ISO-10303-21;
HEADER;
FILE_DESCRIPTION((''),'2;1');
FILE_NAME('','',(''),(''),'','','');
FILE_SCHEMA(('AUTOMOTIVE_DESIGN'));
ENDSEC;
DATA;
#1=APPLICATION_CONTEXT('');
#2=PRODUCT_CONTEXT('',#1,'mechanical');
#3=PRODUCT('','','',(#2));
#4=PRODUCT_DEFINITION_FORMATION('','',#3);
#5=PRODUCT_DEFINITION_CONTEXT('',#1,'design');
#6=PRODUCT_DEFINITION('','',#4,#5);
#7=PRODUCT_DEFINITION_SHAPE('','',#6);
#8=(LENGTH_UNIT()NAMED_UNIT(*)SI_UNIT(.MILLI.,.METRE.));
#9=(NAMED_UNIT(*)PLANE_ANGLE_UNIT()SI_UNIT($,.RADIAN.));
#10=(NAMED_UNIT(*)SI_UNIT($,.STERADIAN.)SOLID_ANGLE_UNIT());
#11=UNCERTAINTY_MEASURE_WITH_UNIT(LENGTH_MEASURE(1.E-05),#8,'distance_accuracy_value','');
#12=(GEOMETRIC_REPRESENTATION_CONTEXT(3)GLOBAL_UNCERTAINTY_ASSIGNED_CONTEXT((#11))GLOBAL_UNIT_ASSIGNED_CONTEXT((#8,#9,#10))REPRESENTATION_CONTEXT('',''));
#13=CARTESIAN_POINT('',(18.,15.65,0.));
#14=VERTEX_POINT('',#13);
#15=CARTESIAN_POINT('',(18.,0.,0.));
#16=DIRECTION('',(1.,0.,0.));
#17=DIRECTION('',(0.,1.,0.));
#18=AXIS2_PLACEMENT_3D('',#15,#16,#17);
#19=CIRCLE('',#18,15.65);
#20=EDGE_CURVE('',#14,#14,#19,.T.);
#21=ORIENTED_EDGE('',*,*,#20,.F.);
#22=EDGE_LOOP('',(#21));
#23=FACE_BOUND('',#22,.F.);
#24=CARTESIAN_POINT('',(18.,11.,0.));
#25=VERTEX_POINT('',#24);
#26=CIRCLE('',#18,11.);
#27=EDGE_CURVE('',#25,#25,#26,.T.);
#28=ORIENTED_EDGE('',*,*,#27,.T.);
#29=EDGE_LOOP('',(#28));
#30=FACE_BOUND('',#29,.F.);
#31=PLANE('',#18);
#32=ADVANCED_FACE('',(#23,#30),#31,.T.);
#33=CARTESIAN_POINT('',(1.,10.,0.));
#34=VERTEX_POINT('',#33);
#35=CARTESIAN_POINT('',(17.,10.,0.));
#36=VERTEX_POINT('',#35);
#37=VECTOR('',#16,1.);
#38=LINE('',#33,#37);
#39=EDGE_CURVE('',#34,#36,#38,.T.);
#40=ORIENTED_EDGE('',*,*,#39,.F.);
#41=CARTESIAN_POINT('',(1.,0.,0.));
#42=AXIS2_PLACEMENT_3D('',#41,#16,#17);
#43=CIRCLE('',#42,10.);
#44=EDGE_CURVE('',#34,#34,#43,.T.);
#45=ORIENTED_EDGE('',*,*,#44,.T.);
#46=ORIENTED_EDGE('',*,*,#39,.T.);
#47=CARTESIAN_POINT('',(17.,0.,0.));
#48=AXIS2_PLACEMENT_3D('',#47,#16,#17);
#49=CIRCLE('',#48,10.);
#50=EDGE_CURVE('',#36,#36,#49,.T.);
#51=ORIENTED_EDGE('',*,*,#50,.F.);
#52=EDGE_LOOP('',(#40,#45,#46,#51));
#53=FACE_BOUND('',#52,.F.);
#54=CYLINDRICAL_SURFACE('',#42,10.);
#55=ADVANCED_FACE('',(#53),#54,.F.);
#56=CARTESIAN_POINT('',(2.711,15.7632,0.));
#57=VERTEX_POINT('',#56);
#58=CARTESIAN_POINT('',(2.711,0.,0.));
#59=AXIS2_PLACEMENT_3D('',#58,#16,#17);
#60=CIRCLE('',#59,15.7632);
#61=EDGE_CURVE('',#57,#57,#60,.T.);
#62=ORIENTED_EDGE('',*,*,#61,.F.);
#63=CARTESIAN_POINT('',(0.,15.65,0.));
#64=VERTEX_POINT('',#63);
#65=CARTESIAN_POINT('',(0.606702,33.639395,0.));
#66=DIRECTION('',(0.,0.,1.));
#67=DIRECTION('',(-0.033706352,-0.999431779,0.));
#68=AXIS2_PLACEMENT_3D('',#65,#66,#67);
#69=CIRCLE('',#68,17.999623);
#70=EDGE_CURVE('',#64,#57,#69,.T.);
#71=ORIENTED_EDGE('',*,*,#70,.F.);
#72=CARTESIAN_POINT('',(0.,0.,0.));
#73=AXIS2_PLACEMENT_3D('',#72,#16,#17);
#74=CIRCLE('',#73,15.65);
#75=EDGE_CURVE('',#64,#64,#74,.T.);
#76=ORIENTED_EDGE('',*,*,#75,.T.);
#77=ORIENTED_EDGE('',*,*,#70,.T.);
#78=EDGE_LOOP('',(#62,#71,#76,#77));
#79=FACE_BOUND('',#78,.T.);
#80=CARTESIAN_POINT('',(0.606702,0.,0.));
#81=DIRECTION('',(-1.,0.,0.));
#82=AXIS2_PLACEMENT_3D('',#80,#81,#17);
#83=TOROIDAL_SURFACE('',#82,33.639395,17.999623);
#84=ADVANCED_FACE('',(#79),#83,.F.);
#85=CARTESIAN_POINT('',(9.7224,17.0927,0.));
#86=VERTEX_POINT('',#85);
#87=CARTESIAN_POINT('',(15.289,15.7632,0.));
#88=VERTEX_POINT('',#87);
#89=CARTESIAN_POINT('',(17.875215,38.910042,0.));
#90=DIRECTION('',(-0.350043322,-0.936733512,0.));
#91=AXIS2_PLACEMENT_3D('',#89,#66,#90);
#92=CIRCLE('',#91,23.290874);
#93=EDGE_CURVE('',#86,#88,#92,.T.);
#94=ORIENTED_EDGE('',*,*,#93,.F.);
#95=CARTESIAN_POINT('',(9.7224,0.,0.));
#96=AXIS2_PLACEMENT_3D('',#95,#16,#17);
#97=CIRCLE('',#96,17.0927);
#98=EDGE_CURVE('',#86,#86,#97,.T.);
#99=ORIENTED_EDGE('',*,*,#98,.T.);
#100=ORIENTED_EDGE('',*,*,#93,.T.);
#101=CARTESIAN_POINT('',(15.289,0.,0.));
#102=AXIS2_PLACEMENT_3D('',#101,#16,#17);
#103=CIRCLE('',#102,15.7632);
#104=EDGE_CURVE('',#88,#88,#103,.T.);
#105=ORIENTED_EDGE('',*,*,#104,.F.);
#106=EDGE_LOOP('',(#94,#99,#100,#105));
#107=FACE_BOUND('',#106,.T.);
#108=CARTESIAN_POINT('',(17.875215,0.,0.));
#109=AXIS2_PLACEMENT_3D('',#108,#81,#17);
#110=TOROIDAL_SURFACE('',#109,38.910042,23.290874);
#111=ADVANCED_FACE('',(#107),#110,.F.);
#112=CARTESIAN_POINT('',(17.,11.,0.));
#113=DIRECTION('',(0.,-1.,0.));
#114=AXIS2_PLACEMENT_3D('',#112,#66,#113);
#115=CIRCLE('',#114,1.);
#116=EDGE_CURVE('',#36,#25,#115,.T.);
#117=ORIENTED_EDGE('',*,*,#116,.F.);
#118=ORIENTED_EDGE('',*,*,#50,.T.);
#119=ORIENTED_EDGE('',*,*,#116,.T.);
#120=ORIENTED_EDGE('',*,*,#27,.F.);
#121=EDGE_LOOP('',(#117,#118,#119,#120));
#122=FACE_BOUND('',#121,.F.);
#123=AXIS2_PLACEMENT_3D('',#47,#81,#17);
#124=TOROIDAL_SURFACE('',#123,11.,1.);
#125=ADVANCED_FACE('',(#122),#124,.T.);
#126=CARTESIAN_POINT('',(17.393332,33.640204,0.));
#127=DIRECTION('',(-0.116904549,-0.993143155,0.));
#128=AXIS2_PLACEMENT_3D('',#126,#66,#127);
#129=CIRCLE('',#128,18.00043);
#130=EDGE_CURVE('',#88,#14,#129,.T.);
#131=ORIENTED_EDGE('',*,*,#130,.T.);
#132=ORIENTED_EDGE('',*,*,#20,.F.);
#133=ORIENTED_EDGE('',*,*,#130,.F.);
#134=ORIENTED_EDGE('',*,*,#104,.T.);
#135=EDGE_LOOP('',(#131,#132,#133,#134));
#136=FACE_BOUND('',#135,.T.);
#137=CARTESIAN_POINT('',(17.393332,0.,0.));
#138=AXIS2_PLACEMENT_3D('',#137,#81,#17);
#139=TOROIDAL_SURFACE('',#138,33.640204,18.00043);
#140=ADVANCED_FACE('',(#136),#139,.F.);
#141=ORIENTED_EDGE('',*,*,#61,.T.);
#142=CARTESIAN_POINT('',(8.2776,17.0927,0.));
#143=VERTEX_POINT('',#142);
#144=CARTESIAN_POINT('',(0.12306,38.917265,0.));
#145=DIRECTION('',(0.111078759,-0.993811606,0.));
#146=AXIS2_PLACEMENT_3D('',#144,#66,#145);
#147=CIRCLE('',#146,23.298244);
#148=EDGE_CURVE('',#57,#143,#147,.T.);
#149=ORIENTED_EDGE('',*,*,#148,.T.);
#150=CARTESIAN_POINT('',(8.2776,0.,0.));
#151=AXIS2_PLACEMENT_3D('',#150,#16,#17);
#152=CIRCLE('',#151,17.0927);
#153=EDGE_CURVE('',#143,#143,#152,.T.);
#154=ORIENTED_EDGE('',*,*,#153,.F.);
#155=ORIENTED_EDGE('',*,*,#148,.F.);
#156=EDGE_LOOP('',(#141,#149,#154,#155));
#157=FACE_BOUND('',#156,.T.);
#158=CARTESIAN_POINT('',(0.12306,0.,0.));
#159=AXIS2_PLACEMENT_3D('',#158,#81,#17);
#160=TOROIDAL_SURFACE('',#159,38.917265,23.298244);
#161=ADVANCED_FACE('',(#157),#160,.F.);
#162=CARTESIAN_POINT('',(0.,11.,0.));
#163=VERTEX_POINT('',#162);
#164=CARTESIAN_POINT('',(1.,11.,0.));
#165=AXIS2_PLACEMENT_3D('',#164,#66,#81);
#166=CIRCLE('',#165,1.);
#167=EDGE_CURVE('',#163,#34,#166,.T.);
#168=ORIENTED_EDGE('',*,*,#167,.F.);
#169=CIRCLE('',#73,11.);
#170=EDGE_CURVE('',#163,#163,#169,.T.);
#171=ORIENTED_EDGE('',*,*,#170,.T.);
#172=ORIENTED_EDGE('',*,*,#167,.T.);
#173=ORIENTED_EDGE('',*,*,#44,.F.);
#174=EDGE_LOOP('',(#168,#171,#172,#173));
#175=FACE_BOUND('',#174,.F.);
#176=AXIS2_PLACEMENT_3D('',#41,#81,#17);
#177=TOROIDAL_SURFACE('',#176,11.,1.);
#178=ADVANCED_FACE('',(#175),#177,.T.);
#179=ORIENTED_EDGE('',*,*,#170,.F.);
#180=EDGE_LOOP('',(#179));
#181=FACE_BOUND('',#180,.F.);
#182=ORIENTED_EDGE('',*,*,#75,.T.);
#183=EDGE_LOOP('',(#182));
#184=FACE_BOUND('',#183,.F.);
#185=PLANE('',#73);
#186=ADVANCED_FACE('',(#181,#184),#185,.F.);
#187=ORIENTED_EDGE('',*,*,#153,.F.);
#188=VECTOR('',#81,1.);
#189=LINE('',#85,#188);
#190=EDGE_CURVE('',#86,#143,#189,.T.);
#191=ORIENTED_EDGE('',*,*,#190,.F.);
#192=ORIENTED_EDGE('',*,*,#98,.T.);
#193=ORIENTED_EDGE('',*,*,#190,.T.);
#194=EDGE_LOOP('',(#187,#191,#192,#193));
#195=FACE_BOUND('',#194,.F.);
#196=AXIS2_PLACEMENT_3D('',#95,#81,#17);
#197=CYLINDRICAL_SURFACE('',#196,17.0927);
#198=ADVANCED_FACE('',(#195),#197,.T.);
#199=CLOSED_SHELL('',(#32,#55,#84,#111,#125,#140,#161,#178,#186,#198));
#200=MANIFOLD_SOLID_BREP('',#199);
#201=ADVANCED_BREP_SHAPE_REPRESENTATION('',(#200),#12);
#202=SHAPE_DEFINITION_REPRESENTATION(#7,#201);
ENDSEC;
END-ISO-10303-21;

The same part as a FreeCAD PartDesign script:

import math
import FreeCAD as App
import Part
import Sketcher

doc = App.newDocument("Part")
body = doc.addObject("PartDesign::Body", "Body")

# Sketch on XY plane
sketch1 = body.newObject("Sketcher::SketchObject", "Sketch")
sketch1.AttachmentSupport = (doc.getObject("XY_Plane"), [""])
sketch1.MapMode = "FlatFace"
sketch1.addGeometry([
    Part.LineSegment(App.Vector(0, 15.7, 0), App.Vector(0, 11, 0)),  # 0
    Part.ArcOfCircle(Part.Circle(App.Vector(1, 11, 0), App.Vector(0, 0, 1), 1), math.radians(180), math.radians(270)),  # 1
    Part.LineSegment(App.Vector(1, 10, 0), App.Vector(17, 10, 0)),  # 2
    Part.ArcOfCircle(Part.Circle(App.Vector(17, 11, 0), App.Vector(0, 0, 1), 1), math.radians(-90), math.radians(0)),  # 3
    Part.LineSegment(App.Vector(18, 11, 0), App.Vector(18, 15.7, 0)),  # 4
    Part.ArcOfCircle(Part.Circle(App.Vector(17.4, 33.6, 0), App.Vector(0, 0, 1), 18), math.radians(-96.71), math.radians(-88.07)),  # 5
    Part.ArcOfCircle(Part.Circle(App.Vector(17.9, 38.9, 0), App.Vector(0, 0, 1), 23.3), math.radians(-110.49), math.radians(-96.38)),  # 6
    Part.LineSegment(App.Vector(9.7, 17.1, 0), App.Vector(8.3, 17.1, 0)),  # 7
    Part.ArcOfCircle(Part.Circle(App.Vector(0.1, 38.9, 0), App.Vector(0, 0, 1), 23.3), math.radians(-83.62), math.radians(-69.51)),  # 8
    Part.ArcOfCircle(Part.Circle(App.Vector(0.6, 33.6, 0), App.Vector(0, 0, 1), 18), math.radians(-91.93), math.radians(-83.29)),  # 9
], False)
sketch1.addConstraint([
    Sketcher.Constraint("Tangent", 0, 2, 1, 1),
    Sketcher.Constraint("Tangent", 1, 2, 2, 1),
    Sketcher.Constraint("Tangent", 2, 2, 3, 1),
    Sketcher.Constraint("Tangent", 3, 2, 4, 1),
    Sketcher.Constraint("Coincident", 4, 2, 5, 2),
    Sketcher.Constraint("Coincident", 5, 1, 6, 2),
    Sketcher.Constraint("Coincident", 6, 1, 7, 1),
    Sketcher.Constraint("Coincident", 7, 2, 8, 2),
    Sketcher.Constraint("Coincident", 8, 1, 9, 2),
    Sketcher.Constraint("Coincident", 9, 1, 0, 1),
    Sketcher.Constraint("Vertical", 0),
    Sketcher.Constraint("Horizontal", 2),
    Sketcher.Constraint("Vertical", 4),
    Sketcher.Constraint("Horizontal", 7),
    Sketcher.Constraint("Equal", 1, 3),
    Sketcher.Constraint("Equal", 5, 9),
    Sketcher.Constraint("PointOnObject", 0, 2, -2),
    Sketcher.Constraint("Horizontal", 5, 3, 9, 3),
    Sketcher.Constraint("Horizontal", 5, 1, 8, 1),
    Sketcher.Constraint("Horizontal", 4, 2, 9, 1),
    Sketcher.Constraint("Radius", 1, 1.0),
    Sketcher.Constraint("Radius", 5, 18.0),
    Sketcher.Constraint("DistanceX", 2, 1, 2, 2, 16.0),
    Sketcher.Constraint("DistanceY", -1, 1, 1, 3, 11.0),
    Sketcher.Constraint("DistanceY", 0, 2, 0, 1, 4.65),
    Sketcher.Constraint("Radius", 6, 23.2909),
    Sketcher.Constraint("Radius", 8, 23.2982),
    Sketcher.Constraint("DistanceY", -1, 1, 6, 3, 38.91),
    Sketcher.Constraint("DistanceX", 7, 2, 7, 1, 1.4448),
    Sketcher.Constraint("DistanceX", -1, 1, 8, 3, 0.123),
    Sketcher.Constraint("DistanceX", -1, 1, 5, 1, 15.289),
    Sketcher.Constraint("DistanceX", 5, 3, 6, 3, 0.482),
])
revolution = body.newObject("PartDesign::Revolution", "Revolution")
revolution.Profile = sketch1
revolution.ReferenceAxis = (sketch1, ["H_Axis"])
revolution.Angle = 360

doc.recompute()
